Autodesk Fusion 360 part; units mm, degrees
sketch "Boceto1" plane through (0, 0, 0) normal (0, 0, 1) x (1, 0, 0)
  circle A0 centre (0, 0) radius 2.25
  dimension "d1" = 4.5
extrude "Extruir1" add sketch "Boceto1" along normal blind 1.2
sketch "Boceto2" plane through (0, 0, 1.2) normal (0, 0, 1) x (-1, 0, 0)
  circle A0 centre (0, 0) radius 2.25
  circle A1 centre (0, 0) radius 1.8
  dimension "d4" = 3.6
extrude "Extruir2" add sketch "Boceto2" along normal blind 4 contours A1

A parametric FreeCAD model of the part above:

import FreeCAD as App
import Part
import Sketcher

doc = App.newDocument("Part")
body = doc.addObject("PartDesign::Body", "Body")

sketch1 = body.newObject("Sketcher::SketchObject", "Sketch")
sketch1.AttachmentSupport = (doc.getObject("XY_Plane"), [""])
sketch1.MapMode = "FlatFace"
sketch1.addGeometry(Part.Circle(App.Vector(0, 0, 0), App.Vector(0, 0, 1), 2.2), False)
sketch1.addConstraint([
    Sketcher.Constraint("Coincident", 0, 3, -1, 1),
    Sketcher.Constraint("Diameter", 0, 4.5),
])
pad1 = body.newObject("PartDesign::Pad", "Pad")
pad1.Profile = sketch1
pad1.Length = 1.2

sketch2 = body.newObject("Sketcher::SketchObject", "Sketch001")
sketch2.AttachmentSupport = (doc.getObject("XY_Plane"), [""])
sketch2.MapMode = "FlatFace"
sketch2.AttachmentOffset = App.Placement(App.Vector(0, 0, 1.2), App.Rotation())
sketch2.addGeometry(Part.Circle(App.Vector(0, 0, 0), App.Vector(0, 0, 1), 1.8), False)
sketch2.addConstraint([
    Sketcher.Constraint("Coincident", 0, 3, -1, 1),
    Sketcher.Constraint("Diameter", 0, 3.6),
])
pad2 = body.newObject("PartDesign::Pad", "Pad001")
pad2.Profile = sketch2
pad2.Length = 4

doc.recompute()
